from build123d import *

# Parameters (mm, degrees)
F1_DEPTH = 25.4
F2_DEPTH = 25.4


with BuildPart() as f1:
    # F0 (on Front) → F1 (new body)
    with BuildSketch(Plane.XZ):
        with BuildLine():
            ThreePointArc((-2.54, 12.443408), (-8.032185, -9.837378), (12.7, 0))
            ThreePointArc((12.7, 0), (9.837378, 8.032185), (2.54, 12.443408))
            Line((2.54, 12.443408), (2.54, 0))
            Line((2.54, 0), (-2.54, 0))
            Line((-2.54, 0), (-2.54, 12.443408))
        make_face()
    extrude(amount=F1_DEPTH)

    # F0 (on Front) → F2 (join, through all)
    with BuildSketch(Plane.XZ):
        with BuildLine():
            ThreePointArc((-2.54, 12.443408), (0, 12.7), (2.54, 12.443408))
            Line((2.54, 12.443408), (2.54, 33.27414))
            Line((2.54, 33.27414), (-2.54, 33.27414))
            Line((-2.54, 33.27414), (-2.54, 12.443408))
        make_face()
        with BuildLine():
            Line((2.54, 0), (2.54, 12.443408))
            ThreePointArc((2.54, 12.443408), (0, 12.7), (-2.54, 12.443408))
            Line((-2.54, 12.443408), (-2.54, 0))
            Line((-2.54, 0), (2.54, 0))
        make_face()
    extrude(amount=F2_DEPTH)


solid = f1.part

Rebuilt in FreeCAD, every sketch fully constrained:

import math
import FreeCAD as App
import Part
import Sketcher
from FreeCAD import Vector
Q = App.Units.Quantity

doc = App.newDocument("Part")
params = doc.addObject("Spreadsheet::Sheet", "Params")
for row, (alias, value) in enumerate([
    ("sketch1_radius", "0.5 in"),
    ("sketch1_width", "0.2 in"),
    ("pad1_length", "1 in"),
    ("sketch2_width", "0.2 in"),
    ("pad2_length", "1 in"),
], start=1):
    params.set(f"A{row}", alias)
    params.set(f"B{row}", "=" + value)
    params.setAlias(f"B{row}", alias)

body = doc.addObject("PartDesign::Body", "Body")

sketch1 = doc.addObject("Sketcher::SketchObject", "Sketch")
body.addObject(sketch1)
sketch1.AttachmentSupport = (doc.XZ_Plane, [""])
sketch1.MapMode = "FlatFace"
sketch1.addGeometry([
    Part.ArcOfCircle(Part.Circle(Vector(0, 0, 0), Vector(0, 0, 1), 13), math.radians(102), math.radians(360)),
    Part.ArcOfCircle(Part.Circle(Vector(0, 0, 0), Vector(0, 0, 1), 13), math.radians(0), math.radians(78)),
    Part.LineSegment(Vector(3, 12, 0), Vector(3, 0, 0)),
    Part.LineSegment(Vector(3, 0, 0), Vector(-3, 0, 0)),
    Part.LineSegment(Vector(-3, 0, 0), Vector(-3, 12, 0)),
], False)
sketch1.addConstraint([
    Sketcher.Constraint("Tangent", 0, 2, 1, 1),
    Sketcher.Constraint("Coincident", 1, 2, 2, 1),
    Sketcher.Constraint("Coincident", 2, 2, 3, 1),
    Sketcher.Constraint("Coincident", 3, 2, 4, 1),
    Sketcher.Constraint("Coincident", 4, 2, 0, 1),
    Sketcher.Constraint("Vertical", 2),
    Sketcher.Constraint("Horizontal", 3),
    Sketcher.Constraint("Vertical", 4),
    Sketcher.Constraint("Coincident", 0, 3, -1, 1),
    Sketcher.Constraint("Equal", 0, 1),
    Sketcher.Constraint("Symmetric", 2, 2, 3, 2, -1, 1),
    Sketcher.Constraint("PointOnObject", 0, 2, -1),
    Sketcher.Constraint("Radius", 0, Q("0.5 in")),
    Sketcher.Constraint("DistanceX", 3, 2, 3, 1, Q("0.2 in")),
])
sketch1.setExpression("Constraints[12]", "Params.sketch1_radius")
sketch1.setExpression("Constraints[13]", "Params.sketch1_width")
pad1 = doc.addObject("PartDesign::Pad", "Pad")
body.addObject(pad1)
pad1.Profile = sketch1
pad1.setExpression("Length", "Params.pad1_length")

sketch2 = doc.addObject("Sketcher::SketchObject", "Sketch001")
body.addObject(sketch2)
sketch2.AttachmentSupport = (doc.XZ_Plane, [""])
sketch2.MapMode = "FlatFace"
sketch2.addGeometry([
    Part.LineSegment(Vector(3, 33, 0), Vector(-3, 33, 0)),
    Part.LineSegment(Vector(-3, 33, 0), Vector(-3, 0, 0)),
    Part.LineSegment(Vector(-3, 0, 0), Vector(3, 0, 0)),
    Part.LineSegment(Vector(3, 0, 0), Vector(3, 33, 0)),
], False)
sketch2.addConstraint([
    Sketcher.Constraint("Coincident", 0, 2, 1, 1),
    Sketcher.Constraint("Coincident", 1, 2, 2, 1),
    Sketcher.Constraint("Coincident", 2, 2, 3, 1),
    Sketcher.Constraint("Coincident", 3, 2, 0, 1),
    Sketcher.Constraint("Horizontal", 0),
    Sketcher.Constraint("Vertical", 1),
    Sketcher.Constraint("Horizontal", 2),
    Sketcher.Constraint("Vertical", 3),
    Sketcher.Constraint("Symmetric", 1, 2, 2, 2, -1, 1),
    Sketcher.Constraint("DistanceX", 0, 2, 0, 1, Q("0.2 in")),
    Sketcher.Constraint("DistanceY", 1, 2, 1, 1, 33.27414),
])
sketch2.setExpression("Constraints[9]", "Params.sketch2_width")
pad2 = doc.addObject("PartDesign::Pad", "Pad001")
body.addObject(pad2)
pad2.Profile = sketch2
pad2.setExpression("Length", "Params.pad2_length")

doc.recompute()
